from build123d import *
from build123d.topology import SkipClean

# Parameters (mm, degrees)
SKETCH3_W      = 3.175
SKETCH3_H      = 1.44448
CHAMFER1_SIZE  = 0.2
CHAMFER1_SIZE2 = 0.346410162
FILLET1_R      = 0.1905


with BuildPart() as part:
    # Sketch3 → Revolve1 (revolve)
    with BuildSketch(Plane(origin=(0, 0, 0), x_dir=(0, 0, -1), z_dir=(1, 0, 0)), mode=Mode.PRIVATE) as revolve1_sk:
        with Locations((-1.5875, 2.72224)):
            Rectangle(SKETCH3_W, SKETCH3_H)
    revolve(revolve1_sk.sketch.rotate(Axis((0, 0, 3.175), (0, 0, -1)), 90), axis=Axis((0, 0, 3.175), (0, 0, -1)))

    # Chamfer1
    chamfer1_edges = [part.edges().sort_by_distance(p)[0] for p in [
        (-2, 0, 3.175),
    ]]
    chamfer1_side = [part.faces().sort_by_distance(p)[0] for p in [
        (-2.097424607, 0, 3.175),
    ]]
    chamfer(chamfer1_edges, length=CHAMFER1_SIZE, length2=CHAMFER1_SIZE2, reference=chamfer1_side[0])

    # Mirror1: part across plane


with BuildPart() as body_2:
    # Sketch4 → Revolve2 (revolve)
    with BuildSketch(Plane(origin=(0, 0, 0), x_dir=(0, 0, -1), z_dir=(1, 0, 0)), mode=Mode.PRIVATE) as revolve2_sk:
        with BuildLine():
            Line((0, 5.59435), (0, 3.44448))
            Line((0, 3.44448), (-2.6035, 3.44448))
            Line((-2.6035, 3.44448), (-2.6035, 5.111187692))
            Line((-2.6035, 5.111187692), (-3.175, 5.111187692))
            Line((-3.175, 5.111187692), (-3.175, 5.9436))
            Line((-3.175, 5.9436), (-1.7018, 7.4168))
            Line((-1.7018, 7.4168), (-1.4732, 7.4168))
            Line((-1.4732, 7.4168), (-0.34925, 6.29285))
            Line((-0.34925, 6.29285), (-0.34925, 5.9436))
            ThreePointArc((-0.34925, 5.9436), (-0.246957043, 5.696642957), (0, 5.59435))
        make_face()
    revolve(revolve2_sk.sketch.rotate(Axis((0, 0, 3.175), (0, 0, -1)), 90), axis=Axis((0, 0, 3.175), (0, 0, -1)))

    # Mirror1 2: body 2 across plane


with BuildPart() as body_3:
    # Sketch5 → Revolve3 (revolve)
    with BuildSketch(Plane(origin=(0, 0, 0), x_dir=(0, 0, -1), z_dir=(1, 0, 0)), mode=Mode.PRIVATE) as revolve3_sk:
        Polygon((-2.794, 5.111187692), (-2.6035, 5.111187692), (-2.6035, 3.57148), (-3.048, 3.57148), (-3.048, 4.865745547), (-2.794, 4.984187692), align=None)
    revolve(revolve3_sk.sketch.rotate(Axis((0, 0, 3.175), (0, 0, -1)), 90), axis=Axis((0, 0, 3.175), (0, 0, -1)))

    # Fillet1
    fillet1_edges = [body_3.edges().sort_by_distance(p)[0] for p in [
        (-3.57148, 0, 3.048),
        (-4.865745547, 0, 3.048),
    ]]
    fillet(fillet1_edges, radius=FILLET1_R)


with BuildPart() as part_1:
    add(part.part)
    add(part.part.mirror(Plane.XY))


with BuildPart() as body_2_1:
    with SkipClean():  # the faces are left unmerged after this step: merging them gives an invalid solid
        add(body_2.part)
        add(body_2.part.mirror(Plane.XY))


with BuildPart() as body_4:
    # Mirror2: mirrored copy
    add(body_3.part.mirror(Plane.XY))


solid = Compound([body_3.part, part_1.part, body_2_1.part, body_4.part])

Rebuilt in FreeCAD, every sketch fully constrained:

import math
import FreeCAD as App
import Part
import Sketcher
from FreeCAD import Vector
Q = App.Units.Quantity


def edges_at(feature, points):
    """Names of the edges that pass closest to the given points."""
    edges = feature.Shape.Edges
    near = lambda p: min(range(len(edges)), key=lambda i: edges[i].distToShape(Part.Vertex(*p))[0])
    return sorted({f"Edge{near(p) + 1}" for p in points})

doc = App.newDocument("Part")
body = doc.addObject("PartDesign::Body", "Body")

sketch1 = body.newObject("Sketcher::SketchObject", "Sketch")
sketch1.AttachmentSupport = (doc.getObject("YZ_Plane"), [""])
sketch1.MapMode = "FlatFace"
sketch1.addGeometry([
    Part.LineSegment(Vector(3.4, 3.2, 0), Vector(2, 3.2, 0)),
    Part.LineSegment(Vector(2, 3.2, 0), Vector(2, 0, 0)),
    Part.LineSegment(Vector(2, 0, 0), Vector(3.4, 0, 0)),
    Part.LineSegment(Vector(3.4, 0, 0), Vector(3.4, 3.2, 0)),
], False)
sketch1.addConstraint([
    Sketcher.Constraint("Coincident", 0, 2, 1, 1),
    Sketcher.Constraint("Coincident", 1, 2, 2, 1),
    Sketcher.Constraint("Coincident", 2, 2, 3, 1),
    Sketcher.Constraint("Coincident", 3, 2, 0, 1),
    Sketcher.Constraint("Horizontal", 0),
    Sketcher.Constraint("Vertical", 1),
    Sketcher.Constraint("Horizontal", 2),
    Sketcher.Constraint("Vertical", 3),
    Sketcher.Constraint("PointOnObject", 1, 2, -1),
    Sketcher.Constraint("DistanceY", 1, 2, 1, 1, Q("0.125 in")),
    Sketcher.Constraint("DistanceX", 0, 2, 0, 1, Q("1.44448 mm")),
    Sketcher.Constraint("DistanceX", -1, 1, 0, 2, Q("2 mm")),
])
revolution = body.newObject("PartDesign::Revolution", "Revolution")
revolution.Profile = sketch1
revolution.ReferenceAxis = (sketch1, ["V_Axis"])
revolution.Angle = 360
doc.recompute()

chamfer = body.newObject("PartDesign::Chamfer", "Chamfer")
chamfer.Base = (revolution, edges_at(revolution, [(-2, 0, 3.175)]))
chamfer.ChamferType = "Two distances"
chamfer.Size = 0.2
chamfer.Size2 = 0.34641
body2 = doc.addObject("PartDesign::Body", "Body001")

sketch2 = body2.newObject("Sketcher::SketchObject", "Sketch001")
sketch2.AttachmentSupport = (doc.getObject("YZ_Plane001"), [""])
sketch2.MapMode = "FlatFace"
sketch2.addGeometry([
    Part.LineSegment(Vector(3.44, 0, 0), Vector(5.59, 0, 0)),
    Part.ArcOfCircle(Part.Circle(Vector(5.94, 0, 0), Vector(0, 0, 1), 0.35), math.radians(90), math.radians(180)),
    Part.LineSegment(Vector(5.94, 0.35, 0), Vector(6.29, 0.35, 0)),
    Part.LineSegment(Vector(6.29, 0.35, 0), Vector(7.42, 1.47, 0)),
    Part.LineSegment(Vector(7.42, 1.47, 0), Vector(7.42, 1.7, 0)),
    Part.LineSegment(Vector(7.42, 1.7, 0), Vector(5.94, 3.17, 0)),
    Part.LineSegment(Vector(5.94, 3.17, 0), Vector(5.11, 3.17, 0)),
    Part.LineSegment(Vector(5.11, 3.17, 0), Vector(5.11, 2.6, 0)),
    Part.LineSegment(Vector(5.11, 2.6, 0), Vector(3.44, 2.6, 0)),
    Part.LineSegment(Vector(3.44, 2.6, 0), Vector(3.44, 0, 0)),
], False)
sketch2.addConstraint([
    Sketcher.Constraint("Coincident", 0, 2, 1, 2),
    Sketcher.Constraint("Tangent", 1, 1, 2, 1),
    Sketcher.Constraint("Coincident", 2, 2, 3, 1),
    Sketcher.Constraint("Coincident", 3, 2, 4, 1),
    Sketcher.Constraint("Coincident", 4, 2, 5, 1),
    Sketcher.Constraint("Coincident", 5, 2, 6, 1),
    Sketcher.Constraint("Coincident", 6, 2, 7, 1),
    Sketcher.Constraint("Coincident", 7, 2, 8, 1),
    Sketcher.Constraint("Coincident", 8, 2, 9, 1),
    Sketcher.Constraint("Coincident", 9, 2, 0, 1),
    Sketcher.Constraint("Horizontal", 0),
    Sketcher.Constraint("Horizontal", 2),
    Sketcher.Constraint("Vertical", 4),
    Sketcher.Constraint("Horizontal", 6),
    Sketcher.Constraint("Vertical", 7),
    Sketcher.Constraint("Horizontal", 8),
    Sketcher.Constraint("Vertical", 9),
    Sketcher.Constraint("PointOnObject", 1, 3, -1),
    Sketcher.Constraint("PointOnObject", 0, 2, -1),
    Sketcher.Constraint("Perpendicular", 3, 5),
    Sketcher.Constraint("Vertical", 1, 1, 5, 2),
    Sketcher.Constraint("Angle", 3, Q("45 deg")),
    Sketcher.Constraint("DistanceY", 4, 1, 4, 2, Q("0.009 in")),
    Sketcher.Constraint("DistanceY", 7, 2, 7, 1, Q("0.0225 in")),
    Sketcher.Constraint("DistanceY", 9, 2, 9, 1, Q("0.1025 in")),
    Sketcher.Constraint("DistanceX", -1, 1, 1, 3, Q("0.234 in")),
    Sketcher.Constraint("DistanceX", -1, 1, 3, 2, Q("0.292 in")),
    Sketcher.Constraint("Radius", 1, Q("0.34925 mm")),
    Sketcher.Constraint("DistanceX", 0, 1, 0, 2, Q("2.14987 mm")),
    Sketcher.Constraint("DistanceX", 6, 2, 6, 1, Q("0.832412 mm")),
])
revolution2 = body2.newObject("PartDesign::Revolution", "Revolution001")
revolution2.Profile = sketch2
revolution2.ReferenceAxis = (sketch2, ["V_Axis"])
revolution2.Angle = 360
body3 = doc.addObject("PartDesign::Body", "Body002")

sketch3 = body3.newObject("Sketcher::SketchObject", "Sketch002")
sketch3.AttachmentSupport = (doc.getObject("YZ_Plane002"), [""])
sketch3.MapMode = "FlatFace"
sketch3.addGeometry([
    Part.LineSegment(Vector(5.11, 2.6, 0), Vector(5.11, 2.79, 0)),
    Part.LineSegment(Vector(5.11, 2.79, 0), Vector(4.98, 2.79, 0)),
    Part.LineSegment(Vector(4.98, 2.79, 0), Vector(4.87, 3.05, 0)),
    Part.LineSegment(Vector(4.87, 3.05, 0), Vector(3.57, 3.05, 0)),
    Part.LineSegment(Vector(3.57, 3.05, 0), Vector(3.57, 2.6, 0)),
    Part.LineSegment(Vector(3.57, 2.6, 0), Vector(5.11, 2.6, 0)),
], False)
sketch3.addConstraint([
    Sketcher.Constraint("Coincident", 0, 2, 1, 1),
    Sketcher.Constraint("Coincident", 1, 2, 2, 1),
    Sketcher.Constraint("Coincident", 2, 2, 3, 1),
    Sketcher.Constraint("Coincident", 3, 2, 4, 1),
    Sketcher.Constraint("Coincident", 4, 2, 5, 1),
    Sketcher.Constraint("Coincident", 5, 2, 0, 1),
    Sketcher.Constraint("Vertical", 0),
    Sketcher.Constraint("Horizontal", 1),
    Sketcher.Constraint("Horizontal", 3),
    Sketcher.Constraint("Vertical", 4),
    Sketcher.Constraint("Horizontal", 5),
    Sketcher.Constraint("Angle", 2, Q("115 deg")),
    Sketcher.Constraint("DistanceX", 1, 2, 1, 1, Q("0.005 in")),
    Sketcher.Constraint("DistanceY", -1, 1, 0, 2, Q("0.11 in")),
    Sketcher.Constraint("DistanceY", -1, 1, 2, 2, Q("0.12 in")),
    Sketcher.Constraint("DistanceY", 0, 1, 0, 2, Q("0.0075 in")),
    Sketcher.Constraint("DistanceX", 3, 2, 3, 1, Q("1.294266 mm")),
    Sketcher.Constraint("DistanceX", -1, 1, 3, 2, Q("3.57148 mm")),
])
revolution3 = body3.newObject("PartDesign::Revolution", "Revolution002")
revolution3.Profile = sketch3
revolution3.ReferenceAxis = (sketch3, ["V_Axis"])
revolution3.Angle = 360
doc.recompute()

fillet = body3.newObject("PartDesign::Fillet", "Fillet")
fillet.Base = (revolution3, edges_at(revolution3, [(-3.571, 0, 3.048), (-4.866, 0, 3.048)]))
fillet.Radius = Q("0.0075 in")
body4 = doc.addObject("PartDesign::Body", "Body003")
doc.recompute()

body4.BaseFeature = body
doc.recompute()

mirroring = doc.addObject("Part::Mirroring", "Mirroring")
mirroring.Source = body
mirroring.Base = Vector(0, 0, 0)
mirroring.Normal = Vector(0, 0, 1)
body5 = doc.addObject("PartDesign::Body", "Body004")
body5.BaseFeature = mirroring
boolean = body4.newObject("PartDesign::Boolean", "Boolean")
boolean.Type = "Fuse"
boolean.addObjects([body5])
doc.recompute()
body6 = doc.addObject("PartDesign::Body", "Body005")
doc.recompute()

body6.BaseFeature = body2
doc.recompute()

mirroring2 = doc.addObject("Part::Mirroring", "Mirroring001")
mirroring2.Source = body2
mirroring2.Base = Vector(0, 0, 0)
mirroring2.Normal = Vector(0, 0, 1)
body7 = doc.addObject("PartDesign::Body", "Body006")
body7.BaseFeature = mirroring2
boolean2 = body6.newObject("PartDesign::Boolean", "Boolean001")
boolean2.Type = "Fuse"
boolean2.addObjects([body7])
doc.recompute()
body8 = doc.addObject("PartDesign::Body", "Body007")
doc.recompute()

mirroring3 = doc.addObject("Part::Mirroring", "Mirroring002")
mirroring3.Source = body3
mirroring3.Base = Vector(0, 0, 0)
mirroring3.Normal = Vector(0, 0, 1)
body8.BaseFeature = mirroring3
doc.recompute()
mirroring.Visibility = False
mirroring2.Visibility = False
mirroring3.Visibility = False

doc.recompute()
